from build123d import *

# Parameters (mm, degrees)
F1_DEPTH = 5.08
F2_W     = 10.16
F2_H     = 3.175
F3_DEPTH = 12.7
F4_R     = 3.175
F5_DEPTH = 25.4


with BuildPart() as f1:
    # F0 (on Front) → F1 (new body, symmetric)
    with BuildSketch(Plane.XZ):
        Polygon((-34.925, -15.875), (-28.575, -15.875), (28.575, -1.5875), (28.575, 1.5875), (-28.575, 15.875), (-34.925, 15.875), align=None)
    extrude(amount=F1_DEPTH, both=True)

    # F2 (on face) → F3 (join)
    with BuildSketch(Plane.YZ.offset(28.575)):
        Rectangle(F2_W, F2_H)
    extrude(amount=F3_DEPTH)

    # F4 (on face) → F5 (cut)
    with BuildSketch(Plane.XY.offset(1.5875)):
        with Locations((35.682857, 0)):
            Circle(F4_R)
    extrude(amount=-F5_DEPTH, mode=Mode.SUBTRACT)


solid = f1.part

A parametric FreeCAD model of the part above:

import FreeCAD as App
import Part
import Sketcher
Q = App.Units.Quantity

doc = App.newDocument("Part")
body = doc.addObject("PartDesign::Body", "Body")

# Sketch on XZ plane
sketch1 = doc.addObject("Sketcher::SketchObject", "Sketch")
body.addObject(sketch1)
sketch1.AttachmentSupport = (doc.XZ_Plane, [""])
sketch1.MapMode = "FlatFace"
sketch1.addGeometry([
    Part.LineSegment(App.Vector(-34.9, -15.9, 0), App.Vector(-28.6, -15.9, 0)),  # 0
    Part.LineSegment(App.Vector(-28.6, -15.9, 0), App.Vector(28.6, -1.6, 0)),  # 1
    Part.LineSegment(App.Vector(28.6, -1.6, 0), App.Vector(28.6, 1.6, 0)),  # 2
    Part.LineSegment(App.Vector(28.6, 1.6, 0), App.Vector(-28.6, 15.9, 0)),  # 3
    Part.LineSegment(App.Vector(-28.6, 15.9, 0), App.Vector(-34.9, 15.9, 0)),  # 4
    Part.LineSegment(App.Vector(-34.9, 15.9, 0), App.Vector(-34.9, -15.9, 0)),  # 5
], False)
sketch1.addConstraint([
    Sketcher.Constraint("Coincident", 0, 2, 1, 1),
    Sketcher.Constraint("Coincident", 1, 2, 2, 1),
    Sketcher.Constraint("Coincident", 2, 2, 3, 1),
    Sketcher.Constraint("Coincident", 3, 2, 4, 1),
    Sketcher.Constraint("Coincident", 4, 2, 5, 1),
    Sketcher.Constraint("Coincident", 5, 2, 0, 1),
    Sketcher.Constraint("Horizontal", 0),
    Sketcher.Constraint("Vertical", 2),
    Sketcher.Constraint("Horizontal", 4),
    Sketcher.Constraint("Vertical", 5),
    Sketcher.Constraint("Symmetric", 0, 2, 3, 2, -1),
    Sketcher.Constraint("Equal", 1, 3),
    Sketcher.Constraint("DistanceX", 0, 1, 0, 2, Q("0.25 in")),
    Sketcher.Constraint("DistanceY", 5, 2, 5, 1, Q("1.25 in")),
    Sketcher.Constraint("DistanceX", 4, 2, 2, 2, Q("2.5 in")),
    Sketcher.Constraint("DistanceY", 2, 1, 2, 2, Q("0.125 in")),
    Sketcher.Constraint("DistanceX", 0, 2, -1, 1, Q("1.125 in")),
])
pad1 = doc.addObject("PartDesign::Pad", "Pad")
body.addObject(pad1)
pad1.Profile = sketch1
pad1.Length = Q("0.4 in")
pad1.Midplane = True

# Sketch on YZ plane
sketch2 = doc.addObject("Sketcher::SketchObject", "Sketch001")
body.addObject(sketch2)
sketch2.AttachmentSupport = (doc.YZ_Plane, [""])
sketch2.MapMode = "FlatFace"
sketch2.AttachmentOffset = App.Placement(App.Vector(0, 0, 1.125 * 25.4), App.Rotation())
sketch2.addGeometry([
    Part.LineSegment(App.Vector(-5.1, 1.6, 0), App.Vector(-5.1, -1.6, 0)),
    Part.LineSegment(App.Vector(-5.1, -1.6, 0), App.Vector(5.1, -1.6, 0)),
    Part.LineSegment(App.Vector(5.1, -1.6, 0), App.Vector(5.1, 1.6, 0)),
    Part.LineSegment(App.Vector(5.1, 1.6, 0), App.Vector(-5.1, 1.6, 0)),
], False)
sketch2.addConstraint([
    Sketcher.Constraint("Coincident", 0, 2, 1, 1),
    Sketcher.Constraint("Coincident", 1, 2, 2, 1),
    Sketcher.Constraint("Coincident", 2, 2, 3, 1),
    Sketcher.Constraint("Coincident", 3, 2, 0, 1),
    Sketcher.Constraint("Vertical", 0),
    Sketcher.Constraint("Horizontal", 1),
    Sketcher.Constraint("Vertical", 2),
    Sketcher.Constraint("Horizontal", 3),
    Sketcher.Constraint("Symmetric", 0, 2, 2, 2, -1, 1),
    Sketcher.Constraint("DistanceX", 1, 1, 1, 2, Q("0.4 in")),
    Sketcher.Constraint("DistanceY", 0, 2, 0, 1, Q("0.125 in")),
])
pad2 = doc.addObject("PartDesign::Pad", "Pad001")
body.addObject(pad2)
pad2.Profile = sketch2
pad2.Length = Q("0.5 in")

# Sketch on XY plane
sketch3 = doc.addObject("Sketcher::SketchObject", "Sketch002")
body.addObject(sketch3)
sketch3.AttachmentSupport = (doc.XY_Plane, [""])
sketch3.MapMode = "FlatFace"
sketch3.AttachmentOffset = App.Placement(App.Vector(0, 0, 0.0625 * 25.4), App.Rotation())
sketch3.addGeometry(Part.Circle(App.Vector(35.7, 0, 0), App.Vector(0, 0, 1), 3.2), False)
sketch3.addConstraint([
    Sketcher.Constraint("PointOnObject", 0, 3, -1),
    Sketcher.Constraint("Diameter", 0, Q("0.25 in")),
    Sketcher.Constraint("DistanceX", -1, 1, 0, 3, 35.682857),
])
pocket1 = doc.addObject("PartDesign::Pocket", "Pocket")
body.addObject(pocket1)
pocket1.Profile = sketch3
pocket1.Length = Q("1 in")

doc.recompute()
